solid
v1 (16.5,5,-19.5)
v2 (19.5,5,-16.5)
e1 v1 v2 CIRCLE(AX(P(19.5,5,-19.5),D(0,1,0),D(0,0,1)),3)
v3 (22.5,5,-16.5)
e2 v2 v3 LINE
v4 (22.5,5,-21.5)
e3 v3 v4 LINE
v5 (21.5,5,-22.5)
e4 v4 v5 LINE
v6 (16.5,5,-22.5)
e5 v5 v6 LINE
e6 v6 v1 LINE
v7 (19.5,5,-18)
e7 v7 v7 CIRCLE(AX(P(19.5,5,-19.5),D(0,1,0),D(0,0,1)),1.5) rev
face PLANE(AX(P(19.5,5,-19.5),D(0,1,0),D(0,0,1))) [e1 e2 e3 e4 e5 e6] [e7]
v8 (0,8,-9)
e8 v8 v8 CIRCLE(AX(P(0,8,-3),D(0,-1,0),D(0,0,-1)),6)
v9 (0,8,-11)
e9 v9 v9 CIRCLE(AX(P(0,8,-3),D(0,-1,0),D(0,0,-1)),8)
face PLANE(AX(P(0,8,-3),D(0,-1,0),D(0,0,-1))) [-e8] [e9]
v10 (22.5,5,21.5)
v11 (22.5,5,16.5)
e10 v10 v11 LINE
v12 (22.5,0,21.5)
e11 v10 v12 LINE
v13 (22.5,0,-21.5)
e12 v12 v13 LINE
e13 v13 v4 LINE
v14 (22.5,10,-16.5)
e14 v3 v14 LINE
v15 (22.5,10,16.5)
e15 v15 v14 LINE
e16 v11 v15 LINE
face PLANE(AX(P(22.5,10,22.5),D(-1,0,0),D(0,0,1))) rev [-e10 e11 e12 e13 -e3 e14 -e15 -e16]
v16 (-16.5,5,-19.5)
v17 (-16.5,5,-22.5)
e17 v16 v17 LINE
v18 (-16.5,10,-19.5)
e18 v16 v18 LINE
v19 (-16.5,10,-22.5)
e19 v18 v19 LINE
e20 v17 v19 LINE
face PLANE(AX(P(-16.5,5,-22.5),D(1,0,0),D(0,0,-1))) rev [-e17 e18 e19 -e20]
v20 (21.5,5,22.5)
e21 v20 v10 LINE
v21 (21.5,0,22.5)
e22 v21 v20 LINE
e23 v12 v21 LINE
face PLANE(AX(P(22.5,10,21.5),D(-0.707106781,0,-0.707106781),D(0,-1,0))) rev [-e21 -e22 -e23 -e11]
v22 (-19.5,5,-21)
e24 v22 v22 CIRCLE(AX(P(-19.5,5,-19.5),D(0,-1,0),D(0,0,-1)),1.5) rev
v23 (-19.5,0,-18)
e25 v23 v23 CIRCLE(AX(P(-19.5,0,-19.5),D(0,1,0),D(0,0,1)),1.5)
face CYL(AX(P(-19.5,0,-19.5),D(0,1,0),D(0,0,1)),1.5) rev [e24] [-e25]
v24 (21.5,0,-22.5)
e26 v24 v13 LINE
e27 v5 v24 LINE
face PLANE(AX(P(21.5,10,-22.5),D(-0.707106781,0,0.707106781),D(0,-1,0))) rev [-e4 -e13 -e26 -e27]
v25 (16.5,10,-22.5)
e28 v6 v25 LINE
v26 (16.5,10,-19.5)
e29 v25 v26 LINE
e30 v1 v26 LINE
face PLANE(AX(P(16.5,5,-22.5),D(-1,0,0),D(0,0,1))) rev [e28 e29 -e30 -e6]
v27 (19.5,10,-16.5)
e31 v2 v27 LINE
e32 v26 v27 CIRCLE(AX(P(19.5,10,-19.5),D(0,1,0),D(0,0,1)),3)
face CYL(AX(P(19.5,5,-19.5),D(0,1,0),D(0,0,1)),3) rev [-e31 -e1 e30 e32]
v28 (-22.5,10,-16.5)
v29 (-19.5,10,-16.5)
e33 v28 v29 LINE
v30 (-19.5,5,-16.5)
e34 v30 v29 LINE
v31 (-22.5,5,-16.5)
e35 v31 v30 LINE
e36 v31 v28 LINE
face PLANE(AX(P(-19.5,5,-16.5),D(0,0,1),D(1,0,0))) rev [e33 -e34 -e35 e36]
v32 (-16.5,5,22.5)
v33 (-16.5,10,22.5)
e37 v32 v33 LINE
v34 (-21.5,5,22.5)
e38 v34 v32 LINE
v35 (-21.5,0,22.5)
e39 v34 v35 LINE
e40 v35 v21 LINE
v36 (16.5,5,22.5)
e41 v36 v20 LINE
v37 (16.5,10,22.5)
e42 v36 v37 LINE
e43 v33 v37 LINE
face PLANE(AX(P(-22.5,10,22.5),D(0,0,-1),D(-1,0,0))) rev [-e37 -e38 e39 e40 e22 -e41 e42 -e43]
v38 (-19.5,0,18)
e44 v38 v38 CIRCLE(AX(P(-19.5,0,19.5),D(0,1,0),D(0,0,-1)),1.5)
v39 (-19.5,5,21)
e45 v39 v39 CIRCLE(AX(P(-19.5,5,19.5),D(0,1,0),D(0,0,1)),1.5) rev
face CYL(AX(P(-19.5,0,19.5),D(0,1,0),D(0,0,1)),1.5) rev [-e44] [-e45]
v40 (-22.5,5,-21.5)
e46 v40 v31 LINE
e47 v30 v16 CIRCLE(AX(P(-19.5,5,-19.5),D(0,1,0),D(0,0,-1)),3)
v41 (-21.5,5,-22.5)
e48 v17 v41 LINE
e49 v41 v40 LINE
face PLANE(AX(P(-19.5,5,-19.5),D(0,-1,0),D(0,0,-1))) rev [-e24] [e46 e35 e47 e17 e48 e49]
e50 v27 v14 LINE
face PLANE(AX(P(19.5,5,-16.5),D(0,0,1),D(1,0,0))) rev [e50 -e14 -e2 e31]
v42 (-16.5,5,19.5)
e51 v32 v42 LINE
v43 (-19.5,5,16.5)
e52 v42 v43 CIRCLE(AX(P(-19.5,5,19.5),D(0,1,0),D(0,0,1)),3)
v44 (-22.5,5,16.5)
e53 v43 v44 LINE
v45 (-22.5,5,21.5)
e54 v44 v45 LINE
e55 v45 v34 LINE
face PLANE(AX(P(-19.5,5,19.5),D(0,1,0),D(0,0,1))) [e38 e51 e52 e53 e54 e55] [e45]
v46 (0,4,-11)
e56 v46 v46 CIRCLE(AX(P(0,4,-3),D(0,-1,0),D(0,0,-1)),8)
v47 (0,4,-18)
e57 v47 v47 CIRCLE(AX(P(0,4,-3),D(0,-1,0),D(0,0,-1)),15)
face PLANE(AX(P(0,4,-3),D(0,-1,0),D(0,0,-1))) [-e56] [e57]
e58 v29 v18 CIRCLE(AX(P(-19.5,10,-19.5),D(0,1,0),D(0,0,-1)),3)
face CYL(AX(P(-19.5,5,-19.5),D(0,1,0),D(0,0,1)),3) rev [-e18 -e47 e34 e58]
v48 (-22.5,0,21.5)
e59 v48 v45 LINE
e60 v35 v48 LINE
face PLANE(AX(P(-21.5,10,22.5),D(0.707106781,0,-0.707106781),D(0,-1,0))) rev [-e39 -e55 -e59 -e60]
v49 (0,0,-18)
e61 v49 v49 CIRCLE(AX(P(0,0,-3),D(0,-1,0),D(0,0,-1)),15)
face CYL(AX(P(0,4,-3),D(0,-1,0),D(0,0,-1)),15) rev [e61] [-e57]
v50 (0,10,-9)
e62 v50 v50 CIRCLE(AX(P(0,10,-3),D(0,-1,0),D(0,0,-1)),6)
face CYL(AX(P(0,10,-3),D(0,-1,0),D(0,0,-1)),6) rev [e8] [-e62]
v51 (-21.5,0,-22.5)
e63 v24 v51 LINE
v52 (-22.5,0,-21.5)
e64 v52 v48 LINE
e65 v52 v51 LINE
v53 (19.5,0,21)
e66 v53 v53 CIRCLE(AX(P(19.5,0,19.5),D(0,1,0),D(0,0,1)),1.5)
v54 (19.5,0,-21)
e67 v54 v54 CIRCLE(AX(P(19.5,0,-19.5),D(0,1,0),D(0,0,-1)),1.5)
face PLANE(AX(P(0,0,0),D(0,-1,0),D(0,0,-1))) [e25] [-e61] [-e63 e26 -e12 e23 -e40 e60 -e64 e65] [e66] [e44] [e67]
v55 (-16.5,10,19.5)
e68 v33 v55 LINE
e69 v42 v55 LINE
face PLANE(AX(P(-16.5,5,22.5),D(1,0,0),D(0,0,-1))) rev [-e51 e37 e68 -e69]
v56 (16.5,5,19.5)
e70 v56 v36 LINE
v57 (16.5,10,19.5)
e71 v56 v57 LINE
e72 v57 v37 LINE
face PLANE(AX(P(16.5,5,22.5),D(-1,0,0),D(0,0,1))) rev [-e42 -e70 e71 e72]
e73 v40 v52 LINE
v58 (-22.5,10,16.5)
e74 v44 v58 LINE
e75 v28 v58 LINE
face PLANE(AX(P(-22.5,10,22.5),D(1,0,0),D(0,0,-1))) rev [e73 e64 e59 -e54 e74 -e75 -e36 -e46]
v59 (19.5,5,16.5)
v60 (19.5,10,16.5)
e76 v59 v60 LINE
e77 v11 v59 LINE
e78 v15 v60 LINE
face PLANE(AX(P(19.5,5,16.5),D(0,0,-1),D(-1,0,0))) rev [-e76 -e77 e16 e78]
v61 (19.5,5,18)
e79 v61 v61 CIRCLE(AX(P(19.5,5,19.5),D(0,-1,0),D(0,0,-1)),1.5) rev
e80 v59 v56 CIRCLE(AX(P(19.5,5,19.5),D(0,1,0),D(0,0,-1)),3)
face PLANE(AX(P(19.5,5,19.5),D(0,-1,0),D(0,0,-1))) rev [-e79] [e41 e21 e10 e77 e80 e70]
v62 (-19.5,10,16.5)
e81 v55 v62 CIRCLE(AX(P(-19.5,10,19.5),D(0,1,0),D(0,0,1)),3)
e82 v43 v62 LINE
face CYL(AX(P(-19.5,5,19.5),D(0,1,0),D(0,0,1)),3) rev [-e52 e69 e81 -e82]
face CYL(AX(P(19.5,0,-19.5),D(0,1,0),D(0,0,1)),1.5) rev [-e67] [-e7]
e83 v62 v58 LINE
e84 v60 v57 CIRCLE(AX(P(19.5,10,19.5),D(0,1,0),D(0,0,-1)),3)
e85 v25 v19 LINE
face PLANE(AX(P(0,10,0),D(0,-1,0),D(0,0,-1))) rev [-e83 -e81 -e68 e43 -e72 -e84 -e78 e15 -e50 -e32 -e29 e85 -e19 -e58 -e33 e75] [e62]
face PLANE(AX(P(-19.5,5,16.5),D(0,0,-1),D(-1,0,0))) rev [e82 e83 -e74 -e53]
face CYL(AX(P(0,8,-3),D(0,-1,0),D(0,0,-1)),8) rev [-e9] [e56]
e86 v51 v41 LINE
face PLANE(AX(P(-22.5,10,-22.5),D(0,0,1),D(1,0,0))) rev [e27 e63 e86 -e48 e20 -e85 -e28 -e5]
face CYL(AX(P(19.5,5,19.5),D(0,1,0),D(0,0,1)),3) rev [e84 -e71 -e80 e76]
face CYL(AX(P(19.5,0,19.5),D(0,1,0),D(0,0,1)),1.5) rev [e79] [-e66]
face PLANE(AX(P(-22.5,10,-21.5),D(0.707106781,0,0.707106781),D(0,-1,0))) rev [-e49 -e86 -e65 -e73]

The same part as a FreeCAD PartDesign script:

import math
import FreeCAD as App
import Part
import Sketcher
Q = App.Units.Quantity


def edges_at(feature, points):
    """Names of the edges that pass closest to the given points."""
    edges = feature.Shape.Edges
    near = lambda p: min(range(len(edges)), key=lambda i: edges[i].distToShape(Part.Vertex(*p))[0])
    return sorted({f"Edge{near(p) + 1}" for p in points})

doc = App.newDocument("Part")
body = doc.addObject("PartDesign::Body", "Body")

# Sketch on XZ plane
sketch1 = body.newObject("Sketcher::SketchObject", "Sketch")
sketch1.AttachmentSupport = (doc.getObject("XZ_Plane"), [""])
sketch1.MapMode = "FlatFace"
sketch1.addGeometry([
    Part.LineSegment(App.Vector(-22.5, -22.5, 0), App.Vector(-22.5, 22.5, 0)),
    Part.LineSegment(App.Vector(-22.5, 22.5, 0), App.Vector(22.5, 22.5, 0)),
    Part.LineSegment(App.Vector(22.5, 22.5, 0), App.Vector(22.5, -22.5, 0)),
    Part.LineSegment(App.Vector(22.5, -22.5, 0), App.Vector(-22.5, -22.5, 0)),
], False)
sketch1.addConstraint([
    Sketcher.Constraint("Coincident", 0, 2, 1, 1),
    Sketcher.Constraint("Coincident", 1, 2, 2, 1),
    Sketcher.Constraint("Coincident", 2, 2, 3, 1),
    Sketcher.Constraint("Coincident", 3, 2, 0, 1),
    Sketcher.Constraint("Vertical", 0),
    Sketcher.Constraint("Horizontal", 1),
    Sketcher.Constraint("Vertical", 2),
    Sketcher.Constraint("Horizontal", 3),
    Sketcher.Constraint("Symmetric", 0, 2, 2, 2, -1, 1),
    Sketcher.Constraint("Equal", 3, 0),
    Sketcher.Constraint("DistanceX", 1, 1, 1, 2, Q("45 mm")),
])
pad1 = body.newObject("PartDesign::Pad", "Pad")
pad1.Profile = sketch1
pad1.Length = 10
pad1.Reversed = True

# Sketch on XZ plane
sketch2 = body.newObject("Sketcher::SketchObject", "Sketch001")
sketch2.AttachmentSupport = (doc.getObject("XZ_Plane"), [""])
sketch2.MapMode = "FlatFace"
sketch2.addGeometry(Part.Circle(App.Vector(0, -3, 0), App.Vector(0, 0, 1), 4), False)
sketch2.addConstraint([
    Sketcher.Constraint("PointOnObject", 0, 3, -2),
    Sketcher.Constraint("Diameter", 0, Q("8 mm")),
    Sketcher.Constraint("DistanceY", 0, 3, -1, 1, Q("3 mm")),
])
pocket1 = body.newObject("PartDesign::Pocket", "Pocket")
pocket1.Profile = sketch2
pocket1.Type = "ThroughAll"

# Sketch on XZ plane
sketch3 = body.newObject("Sketcher::SketchObject", "Sketch002")
sketch3.AttachmentSupport = (doc.getObject("XZ_Plane"), [""])
sketch3.MapMode = "FlatFace"
sketch3.addGeometry(Part.Circle(App.Vector(0, -3, 0), App.Vector(0, 0, 1), 15), False)
sketch3.addConstraint([
    Sketcher.Constraint("PointOnObject", 0, 3, -2),
    Sketcher.Constraint("Diameter", 0, Q("30 mm")),
    Sketcher.Constraint("DistanceY", 0, 3, -1, 1, Q("3 mm")),
])
pocket2 = body.newObject("PartDesign::Pocket", "Pocket001")
pocket2.Profile = sketch3
pocket2.Length = 4

# Sketch on XZ plane
sketch4 = body.newObject("Sketcher::SketchObject", "Sketch003")
sketch4.AttachmentSupport = (doc.getObject("XZ_Plane"), [""])
sketch4.MapMode = "FlatFace"
sketch4.AttachmentOffset = App.Placement(App.Vector(0, 0, -4), App.Rotation())
sketch4.addGeometry(Part.Circle(App.Vector(0, -3, 0), App.Vector(0, 0, 1), 8), False)
sketch4.addConstraint([
    Sketcher.Constraint("PointOnObject", 0, 3, -2),
    Sketcher.Constraint("Diameter", 0, Q("16 mm")),
    Sketcher.Constraint("DistanceY", 0, 3, -1, 1, Q("3 mm")),
])
pocket3 = body.newObject("PartDesign::Pocket", "Pocket002")
pocket3.Profile = sketch4
pocket3.Length = 4

# Sketch on XZ plane
sketch5 = body.newObject("Sketcher::SketchObject", "Sketch004")
sketch5.AttachmentSupport = (doc.getObject("XZ_Plane"), [""])
sketch5.MapMode = "FlatFace"
sketch5.AttachmentOffset = App.Placement(App.Vector(0, 0, -10), App.Rotation())
sketch5.addGeometry([
    Part.Circle(App.Vector(-19.5, -19.5, 0), App.Vector(0, 0, 1), 1.5),
    Part.Circle(App.Vector(19.5, -19.5, 0), App.Vector(0, 0, 1), 1.5),
    Part.Circle(App.Vector(19.5, 19.5, 0), App.Vector(0, 0, 1), 1.5),
    Part.Circle(App.Vector(-19.5, 19.5, 0), App.Vector(0, 0, 1), 1.5),
], False)
sketch5.addConstraint([
    Sketcher.Constraint("Equal", 0, 1),
    Sketcher.Constraint("Equal", 1, 2),
    Sketcher.Constraint("Equal", 2, 3),
    Sketcher.Constraint("Symmetric", 0, 3, 2, 3, -1, 1),
    Sketcher.Constraint("Symmetric", 1, 3, 3, 3, -1, 1),
    Sketcher.Constraint("Symmetric", 0, 3, 1, 3, -2),
    Sketcher.Constraint("Diameter", 0, Q("3 mm")),
    Sketcher.Constraint("DistanceX", 0, 3, 1, 3, Q("39 mm")),
    Sketcher.Constraint("DistanceY", 1, 3, 2, 3, Q("39 mm")),
])
pocket4 = body.newObject("PartDesign::Pocket", "Pocket003")
pocket4.Profile = sketch5
pocket4.Type = "ThroughAll"
pocket4.Reversed = True

# Sketch on XZ plane
sketch6 = body.newObject("Sketcher::SketchObject", "Sketch005")
sketch6.AttachmentSupport = (doc.getObject("XZ_Plane"), [""])
sketch6.MapMode = "FlatFace"
sketch6.AttachmentOffset = App.Placement(App.Vector(0, 0, -10), App.Rotation())
sketch6.addGeometry([
    Part.LineSegment(App.Vector(-16.5, -19.5, 0), App.Vector(-16.5, -22.5, 0)),  # 0
    Part.LineSegment(App.Vector(-16.5, -22.5, 0), App.Vector(-22.5, -22.5, 0)),  # 1
    Part.LineSegment(App.Vector(-22.5, -22.5, 0), App.Vector(-22.5, -16.5, 0)),  # 2
    Part.LineSegment(App.Vector(-22.5, -16.5, 0), App.Vector(-19.5, -16.5, 0)),  # 3
    Part.ArcOfCircle(Part.Circle(App.Vector(-19.5, -19.5, 0), App.Vector(0, 0, 1), 3), math.radians(0), math.radians(90)),  # 4
    Part.LineSegment(App.Vector(22.5, -16.5, 0), App.Vector(22.5, -22.5, 0)),  # 5
    Part.LineSegment(App.Vector(22.5, -22.5, 0), App.Vector(16.5, -22.5, 0)),  # 6
    Part.LineSegment(App.Vector(16.5, -22.5, 0), App.Vector(16.5, -19.5, 0)),  # 7
    Part.ArcOfCircle(Part.Circle(App.Vector(19.5, -19.5, 0), App.Vector(0, 0, 1), 3), math.radians(90), math.radians(180)),  # 8
    Part.LineSegment(App.Vector(19.5, -16.5, 0), App.Vector(22.5, -16.5, 0)),  # 9
    Part.LineSegment(App.Vector(22.5, 16.5, 0), App.Vector(19.5, 16.5, 0)),  # 10
    Part.ArcOfCircle(Part.Circle(App.Vector(19.5, 19.5, 0), App.Vector(0, 0, 1), 3), math.radians(180), math.radians(270)),  # 11
    Part.LineSegment(App.Vector(16.5, 19.5, 0), App.Vector(16.5, 22.5, 0)),  # 12
    Part.LineSegment(App.Vector(16.5, 22.5, 0), App.Vector(22.5, 22.5, 0)),  # 13
    Part.LineSegment(App.Vector(22.5, 22.5, 0), App.Vector(22.5, 16.5, 0)),  # 14
    Part.LineSegment(App.Vector(-22.5, 16.5, 0), App.Vector(-22.5, 22.5, 0)),  # 15
    Part.LineSegment(App.Vector(-22.5, 22.5, 0), App.Vector(-16.5, 22.5, 0)),  # 16
    Part.LineSegment(App.Vector(-16.5, 22.5, 0), App.Vector(-16.5, 19.5, 0)),  # 17
    Part.ArcOfCircle(Part.Circle(App.Vector(-19.5, 19.5, 0), App.Vector(0, 0, 1), 3), math.radians(-90), math.radians(0)),  # 18
    Part.LineSegment(App.Vector(-19.5, 16.5, 0), App.Vector(-22.5, 16.5, 0)),  # 19
], False)
sketch6.addConstraint([
    Sketcher.Constraint("Coincident", 0, 2, 1, 1),
    Sketcher.Constraint("Coincident", 1, 2, 2, 1),
    Sketcher.Constraint("Coincident", 2, 2, 3, 1),
    Sketcher.Constraint("Tangent", 3, 2, 4, 2),
    Sketcher.Constraint("Tangent", 4, 1, 0, 1),
    Sketcher.Constraint("Coincident", 5, 2, 6, 1),
    Sketcher.Constraint("Coincident", 6, 2, 7, 1),
    Sketcher.Constraint("Tangent", 7, 2, 8, 2),
    Sketcher.Constraint("Tangent", 8, 1, 9, 1),
    Sketcher.Constraint("Coincident", 9, 2, 5, 1),
    Sketcher.Constraint("Tangent", 10, 2, 11, 2),
    Sketcher.Constraint("Tangent", 11, 1, 12, 1),
    Sketcher.Constraint("Coincident", 12, 2, 13, 1),
    Sketcher.Constraint("Coincident", 13, 2, 14, 1),
    Sketcher.Constraint("Coincident", 14, 2, 10, 1),
    Sketcher.Constraint("Coincident", 15, 2, 16, 1),
    Sketcher.Constraint("Coincident", 16, 2, 17, 1),
    Sketcher.Constraint("Tangent", 17, 2, 18, 2),
    Sketcher.Constraint("Tangent", 18, 1, 19, 1),
    Sketcher.Constraint("Coincident", 19, 2, 15, 1),
    Sketcher.Constraint("Vertical", 0),
    Sketcher.Constraint("Horizontal", 1),
    Sketcher.Constraint("Vertical", 2),
    Sketcher.Constraint("Horizontal", 3),
    Sketcher.Constraint("Vertical", 5),
    Sketcher.Constraint("Horizontal", 6),
    Sketcher.Constraint("Vertical", 7),
    Sketcher.Constraint("Horizontal", 9),
    Sketcher.Constraint("Horizontal", 10),
    Sketcher.Constraint("Vertical", 12),
    Sketcher.Constraint("Horizontal", 13),
    Sketcher.Constraint("Vertical", 14),
    Sketcher.Constraint("Vertical", 15),
    Sketcher.Constraint("Horizontal", 16),
    Sketcher.Constraint("Vertical", 17),
    Sketcher.Constraint("Horizontal", 19),
    Sketcher.Constraint("Equal", 4, 8),
    Sketcher.Constraint("Equal", 8, 11),
    Sketcher.Constraint("Equal", 11, 18),
    Sketcher.Constraint("Symmetric", 4, 3, 11, 3, -1, 1),
    Sketcher.Constraint("Symmetric", 8, 3, 18, 3, -1, 1),
    Sketcher.Constraint("Symmetric", 1, 2, 13, 2, -1, 1),
    Sketcher.Constraint("Symmetric", 5, 2, 15, 2, -1, 1),
    Sketcher.Constraint("Symmetric", 4, 3, 8, 3, -2),
    Sketcher.Constraint("Symmetric", 1, 2, 5, 2, -2),
    Sketcher.Constraint("Equal", 19, 0),
    Sketcher.Constraint("Radius", 4, Q("3 mm")),
    Sketcher.Constraint("DistanceX", 1, 2, 1, 1, Q("6 mm")),
    Sketcher.Constraint("DistanceX", 4, 3, 8, 3, Q("39 mm")),
    Sketcher.Constraint("DistanceY", 8, 3, 11, 3, Q("39 mm")),
])
pocket5 = body.newObject("PartDesign::Pocket", "Pocket004")
pocket5.Profile = sketch6
pocket5.Length = 5
pocket5.Reversed = True
doc.recompute()

chamfer = body.newObject("PartDesign::Chamfer", "Chamfer")
chamfer.Base = (pocket5, edges_at(pocket5, [
    (22.5, 2.5, 22.5),
    (-22.5, 2.5, 22.5),
    (-22.5, 2.5, -22.5),
    (22.5, 2.5, -22.5),
]))
chamfer.Size = 1

# Sketch on XZ plane
sketch7 = body.newObject("Sketcher::SketchObject", "Sketch006")
sketch7.AttachmentSupport = (doc.getObject("XZ_Plane"), [""])
sketch7.MapMode = "FlatFace"
sketch7.AttachmentOffset = App.Placement(App.Vector(0, 0, -8), App.Rotation())
sketch7.addGeometry(Part.Circle(App.Vector(0, -3, 0), App.Vector(0, 0, 1), 6), False)
sketch7.addConstraint([
    Sketcher.Constraint("PointOnObject", 0, 3, -2),
    Sketcher.Constraint("Diameter", 0, Q("12 mm")),
    Sketcher.Constraint("DistanceY", 0, 3, -1, 1, Q("3 mm")),
])
pocket6 = body.newObject("PartDesign::Pocket", "Pocket005")
pocket6.Profile = sketch7
pocket6.Type = "ThroughAll"

doc.recompute()
